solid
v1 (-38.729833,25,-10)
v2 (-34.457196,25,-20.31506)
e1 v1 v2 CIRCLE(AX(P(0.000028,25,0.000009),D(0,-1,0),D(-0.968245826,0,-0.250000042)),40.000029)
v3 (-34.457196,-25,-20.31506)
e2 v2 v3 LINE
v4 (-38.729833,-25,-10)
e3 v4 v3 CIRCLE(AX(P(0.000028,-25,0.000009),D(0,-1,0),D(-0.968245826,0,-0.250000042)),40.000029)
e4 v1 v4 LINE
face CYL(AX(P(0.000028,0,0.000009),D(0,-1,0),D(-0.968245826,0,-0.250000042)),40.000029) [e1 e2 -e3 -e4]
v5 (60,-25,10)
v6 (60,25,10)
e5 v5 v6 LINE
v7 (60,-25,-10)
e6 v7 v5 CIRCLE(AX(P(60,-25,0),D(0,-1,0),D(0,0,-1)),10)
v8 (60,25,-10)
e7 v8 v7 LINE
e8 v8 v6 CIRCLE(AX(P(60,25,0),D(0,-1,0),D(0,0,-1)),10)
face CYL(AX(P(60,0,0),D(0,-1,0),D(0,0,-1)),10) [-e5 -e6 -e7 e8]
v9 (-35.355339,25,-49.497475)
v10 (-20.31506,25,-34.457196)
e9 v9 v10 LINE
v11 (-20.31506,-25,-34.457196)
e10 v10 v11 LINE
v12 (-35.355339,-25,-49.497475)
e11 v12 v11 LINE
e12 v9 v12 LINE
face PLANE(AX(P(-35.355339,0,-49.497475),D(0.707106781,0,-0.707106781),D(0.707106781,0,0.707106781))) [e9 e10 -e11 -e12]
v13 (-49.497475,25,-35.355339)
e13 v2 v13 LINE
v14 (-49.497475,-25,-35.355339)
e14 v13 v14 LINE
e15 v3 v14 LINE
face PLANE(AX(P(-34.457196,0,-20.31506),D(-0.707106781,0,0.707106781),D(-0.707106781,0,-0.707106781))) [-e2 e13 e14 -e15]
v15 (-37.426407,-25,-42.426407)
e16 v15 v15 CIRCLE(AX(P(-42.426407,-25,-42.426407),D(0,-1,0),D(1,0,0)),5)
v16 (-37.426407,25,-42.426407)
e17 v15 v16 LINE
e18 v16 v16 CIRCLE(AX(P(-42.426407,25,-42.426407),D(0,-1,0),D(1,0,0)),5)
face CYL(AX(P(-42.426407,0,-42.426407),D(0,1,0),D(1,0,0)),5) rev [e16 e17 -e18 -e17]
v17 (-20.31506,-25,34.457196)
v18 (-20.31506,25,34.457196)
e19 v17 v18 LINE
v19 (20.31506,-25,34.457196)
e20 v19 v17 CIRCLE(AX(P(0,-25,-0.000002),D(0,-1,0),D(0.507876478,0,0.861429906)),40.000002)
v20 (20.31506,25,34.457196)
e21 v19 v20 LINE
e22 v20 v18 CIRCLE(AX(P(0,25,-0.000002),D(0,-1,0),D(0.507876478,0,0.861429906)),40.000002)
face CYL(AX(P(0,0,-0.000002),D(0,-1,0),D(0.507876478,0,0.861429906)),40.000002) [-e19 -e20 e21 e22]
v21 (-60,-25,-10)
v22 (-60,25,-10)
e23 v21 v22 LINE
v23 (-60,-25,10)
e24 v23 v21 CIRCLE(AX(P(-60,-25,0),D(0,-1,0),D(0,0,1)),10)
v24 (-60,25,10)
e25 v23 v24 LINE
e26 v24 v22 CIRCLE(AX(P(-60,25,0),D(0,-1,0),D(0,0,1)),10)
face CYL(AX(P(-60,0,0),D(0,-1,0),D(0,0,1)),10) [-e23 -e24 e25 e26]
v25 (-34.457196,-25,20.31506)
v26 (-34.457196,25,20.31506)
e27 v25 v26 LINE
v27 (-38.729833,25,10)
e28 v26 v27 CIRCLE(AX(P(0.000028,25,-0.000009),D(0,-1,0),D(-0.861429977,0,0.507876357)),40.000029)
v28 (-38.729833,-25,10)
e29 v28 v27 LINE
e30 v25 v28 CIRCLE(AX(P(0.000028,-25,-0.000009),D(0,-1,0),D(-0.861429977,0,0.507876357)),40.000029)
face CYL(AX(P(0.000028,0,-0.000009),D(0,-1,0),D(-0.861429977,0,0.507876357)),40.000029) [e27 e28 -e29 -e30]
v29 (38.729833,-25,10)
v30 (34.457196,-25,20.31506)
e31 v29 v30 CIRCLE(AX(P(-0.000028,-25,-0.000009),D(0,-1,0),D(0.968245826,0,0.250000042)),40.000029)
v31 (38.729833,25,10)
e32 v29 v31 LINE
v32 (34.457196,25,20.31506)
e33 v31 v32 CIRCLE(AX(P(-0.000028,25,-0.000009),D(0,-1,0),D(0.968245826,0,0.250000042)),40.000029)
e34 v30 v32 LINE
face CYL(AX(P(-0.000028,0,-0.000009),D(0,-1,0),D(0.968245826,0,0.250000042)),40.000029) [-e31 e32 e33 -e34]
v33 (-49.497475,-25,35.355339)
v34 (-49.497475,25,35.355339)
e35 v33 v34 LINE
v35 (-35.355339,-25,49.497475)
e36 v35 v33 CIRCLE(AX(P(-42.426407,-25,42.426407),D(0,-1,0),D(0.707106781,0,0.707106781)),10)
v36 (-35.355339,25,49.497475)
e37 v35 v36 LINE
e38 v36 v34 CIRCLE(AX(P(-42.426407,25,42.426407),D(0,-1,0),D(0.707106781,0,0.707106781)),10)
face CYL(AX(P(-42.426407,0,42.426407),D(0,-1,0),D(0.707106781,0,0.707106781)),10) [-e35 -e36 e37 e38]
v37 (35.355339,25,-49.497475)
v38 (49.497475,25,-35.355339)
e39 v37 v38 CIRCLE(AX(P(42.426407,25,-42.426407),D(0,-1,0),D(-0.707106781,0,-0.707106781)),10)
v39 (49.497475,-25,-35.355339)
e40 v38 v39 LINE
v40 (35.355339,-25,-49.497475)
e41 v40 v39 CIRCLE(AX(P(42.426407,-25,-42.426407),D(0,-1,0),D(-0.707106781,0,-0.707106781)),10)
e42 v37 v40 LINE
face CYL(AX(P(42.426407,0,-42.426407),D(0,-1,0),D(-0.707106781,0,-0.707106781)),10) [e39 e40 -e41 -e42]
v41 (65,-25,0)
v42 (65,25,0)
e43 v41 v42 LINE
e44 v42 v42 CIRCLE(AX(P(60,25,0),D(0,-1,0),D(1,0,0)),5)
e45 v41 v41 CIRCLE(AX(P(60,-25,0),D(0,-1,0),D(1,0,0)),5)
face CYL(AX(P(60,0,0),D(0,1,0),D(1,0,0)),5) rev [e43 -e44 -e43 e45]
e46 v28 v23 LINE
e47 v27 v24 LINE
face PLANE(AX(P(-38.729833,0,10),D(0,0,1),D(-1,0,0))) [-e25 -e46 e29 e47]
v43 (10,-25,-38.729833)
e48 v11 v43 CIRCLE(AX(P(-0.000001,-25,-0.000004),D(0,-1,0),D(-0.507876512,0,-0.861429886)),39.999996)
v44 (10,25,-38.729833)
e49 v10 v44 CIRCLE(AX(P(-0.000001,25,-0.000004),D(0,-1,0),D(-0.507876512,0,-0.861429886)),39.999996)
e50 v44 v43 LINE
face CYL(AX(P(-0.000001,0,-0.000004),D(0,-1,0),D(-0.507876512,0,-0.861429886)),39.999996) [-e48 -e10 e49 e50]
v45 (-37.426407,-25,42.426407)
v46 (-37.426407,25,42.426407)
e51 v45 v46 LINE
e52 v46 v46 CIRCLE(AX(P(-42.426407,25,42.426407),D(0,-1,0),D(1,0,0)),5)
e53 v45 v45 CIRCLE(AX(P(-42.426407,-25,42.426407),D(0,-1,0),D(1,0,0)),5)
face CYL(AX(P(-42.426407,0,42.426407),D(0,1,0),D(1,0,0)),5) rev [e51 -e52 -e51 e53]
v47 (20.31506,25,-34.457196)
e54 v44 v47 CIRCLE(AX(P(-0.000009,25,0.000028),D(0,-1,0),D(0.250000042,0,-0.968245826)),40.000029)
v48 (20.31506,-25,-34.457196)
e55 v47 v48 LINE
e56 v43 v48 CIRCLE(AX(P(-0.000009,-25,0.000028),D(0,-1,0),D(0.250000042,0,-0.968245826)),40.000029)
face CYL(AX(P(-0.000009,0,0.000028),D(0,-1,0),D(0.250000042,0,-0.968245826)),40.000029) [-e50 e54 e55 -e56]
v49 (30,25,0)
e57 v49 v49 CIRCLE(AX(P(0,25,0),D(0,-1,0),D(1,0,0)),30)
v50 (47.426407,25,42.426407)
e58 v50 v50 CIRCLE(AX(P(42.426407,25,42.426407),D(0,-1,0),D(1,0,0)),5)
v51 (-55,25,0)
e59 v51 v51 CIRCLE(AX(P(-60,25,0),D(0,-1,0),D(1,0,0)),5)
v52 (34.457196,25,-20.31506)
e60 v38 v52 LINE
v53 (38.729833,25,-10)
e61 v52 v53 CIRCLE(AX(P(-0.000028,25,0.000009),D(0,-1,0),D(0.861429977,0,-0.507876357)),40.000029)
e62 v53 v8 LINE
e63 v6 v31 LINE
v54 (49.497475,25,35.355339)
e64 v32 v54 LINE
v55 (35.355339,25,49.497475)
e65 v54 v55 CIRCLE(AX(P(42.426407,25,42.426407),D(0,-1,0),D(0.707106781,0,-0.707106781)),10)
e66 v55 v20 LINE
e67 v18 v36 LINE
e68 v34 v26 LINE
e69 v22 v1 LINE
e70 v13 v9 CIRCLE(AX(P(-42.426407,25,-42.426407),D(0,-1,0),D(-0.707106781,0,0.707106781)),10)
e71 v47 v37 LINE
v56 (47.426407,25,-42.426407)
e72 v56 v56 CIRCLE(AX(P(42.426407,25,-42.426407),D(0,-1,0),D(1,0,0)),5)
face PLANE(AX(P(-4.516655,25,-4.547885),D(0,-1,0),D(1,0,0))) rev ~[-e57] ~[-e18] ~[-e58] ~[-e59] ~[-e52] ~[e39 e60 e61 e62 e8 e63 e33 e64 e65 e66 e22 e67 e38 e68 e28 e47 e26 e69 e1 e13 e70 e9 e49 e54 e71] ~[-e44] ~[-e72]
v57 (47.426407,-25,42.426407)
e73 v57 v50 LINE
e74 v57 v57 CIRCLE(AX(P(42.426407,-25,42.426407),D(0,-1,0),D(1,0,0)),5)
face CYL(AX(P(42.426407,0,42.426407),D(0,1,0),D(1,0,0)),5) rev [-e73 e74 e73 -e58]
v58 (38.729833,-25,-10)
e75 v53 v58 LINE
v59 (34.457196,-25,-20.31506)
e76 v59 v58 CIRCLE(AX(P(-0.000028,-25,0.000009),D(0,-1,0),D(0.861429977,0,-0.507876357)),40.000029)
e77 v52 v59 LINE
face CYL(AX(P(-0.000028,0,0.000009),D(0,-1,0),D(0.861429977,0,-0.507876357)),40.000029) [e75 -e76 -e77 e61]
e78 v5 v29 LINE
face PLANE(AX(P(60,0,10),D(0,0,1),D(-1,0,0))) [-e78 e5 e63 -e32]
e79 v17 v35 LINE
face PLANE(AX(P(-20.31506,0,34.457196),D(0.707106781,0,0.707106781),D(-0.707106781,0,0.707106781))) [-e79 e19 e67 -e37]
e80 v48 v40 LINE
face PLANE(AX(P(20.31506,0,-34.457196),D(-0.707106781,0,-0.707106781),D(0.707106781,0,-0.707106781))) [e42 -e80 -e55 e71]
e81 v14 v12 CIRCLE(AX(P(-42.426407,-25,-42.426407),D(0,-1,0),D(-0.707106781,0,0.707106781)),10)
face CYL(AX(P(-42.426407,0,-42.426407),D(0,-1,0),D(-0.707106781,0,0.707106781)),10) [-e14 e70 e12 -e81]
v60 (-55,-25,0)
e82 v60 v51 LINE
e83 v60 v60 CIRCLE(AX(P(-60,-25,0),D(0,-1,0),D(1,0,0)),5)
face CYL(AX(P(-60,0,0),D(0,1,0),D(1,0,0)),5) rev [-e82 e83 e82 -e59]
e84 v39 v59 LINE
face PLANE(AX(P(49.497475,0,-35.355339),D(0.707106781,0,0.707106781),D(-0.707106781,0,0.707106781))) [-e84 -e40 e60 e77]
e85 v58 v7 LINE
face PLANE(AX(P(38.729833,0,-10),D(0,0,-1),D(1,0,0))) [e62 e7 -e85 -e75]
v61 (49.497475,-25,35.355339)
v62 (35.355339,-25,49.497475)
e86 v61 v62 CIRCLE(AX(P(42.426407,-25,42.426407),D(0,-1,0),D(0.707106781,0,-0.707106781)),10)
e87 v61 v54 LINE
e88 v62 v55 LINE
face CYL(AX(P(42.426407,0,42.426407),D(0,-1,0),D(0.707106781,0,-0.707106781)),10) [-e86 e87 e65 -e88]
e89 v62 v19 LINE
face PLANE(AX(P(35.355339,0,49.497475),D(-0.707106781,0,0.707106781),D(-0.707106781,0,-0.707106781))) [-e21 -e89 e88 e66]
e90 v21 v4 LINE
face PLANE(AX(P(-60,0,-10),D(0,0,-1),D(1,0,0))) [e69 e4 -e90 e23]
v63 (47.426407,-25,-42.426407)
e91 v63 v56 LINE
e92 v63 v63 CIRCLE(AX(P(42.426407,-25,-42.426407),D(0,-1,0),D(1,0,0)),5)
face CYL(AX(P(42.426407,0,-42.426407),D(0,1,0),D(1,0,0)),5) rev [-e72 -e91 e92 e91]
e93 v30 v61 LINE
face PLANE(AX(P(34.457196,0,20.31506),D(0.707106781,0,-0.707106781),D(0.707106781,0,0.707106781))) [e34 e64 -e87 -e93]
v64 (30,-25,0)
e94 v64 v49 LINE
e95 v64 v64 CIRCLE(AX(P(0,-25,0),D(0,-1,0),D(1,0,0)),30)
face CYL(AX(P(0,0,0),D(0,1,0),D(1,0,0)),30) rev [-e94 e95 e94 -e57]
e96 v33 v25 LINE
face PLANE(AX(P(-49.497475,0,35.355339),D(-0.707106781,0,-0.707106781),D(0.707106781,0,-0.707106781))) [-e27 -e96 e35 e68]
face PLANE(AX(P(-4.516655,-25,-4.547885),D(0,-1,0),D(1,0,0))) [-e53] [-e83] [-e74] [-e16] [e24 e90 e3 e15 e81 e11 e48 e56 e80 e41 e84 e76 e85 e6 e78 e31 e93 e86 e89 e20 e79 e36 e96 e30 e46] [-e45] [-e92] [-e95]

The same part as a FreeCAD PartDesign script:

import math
import FreeCAD as App
import Part
import Sketcher

doc = App.newDocument("Part")
params = doc.addObject("Spreadsheet::Sheet", "Params")
for row, (alias, value) in enumerate([
    ("sketch1_diameter", "10 mm"),
    ("sketch1_diameter2", "10 mm"),
    ("sketch1_diameter3", "10 mm"),
    ("sketch1_diameter4", "10 mm"),
    ("sketch1_diameter5", "60 mm"),
    ("pad1_length", "50 mm"),
], start=1):
    params.set(f"A{row}", alias)
    params.set(f"B{row}", "=" + value)
    params.setAlias(f"B{row}", alias)

body = doc.addObject("PartDesign::Body", "Body")

# Sketch on XZ plane
sketch1 = body.newObject("Sketcher::SketchObject", "Sketch")
sketch1.AttachmentSupport = (doc.getObject("XZ_Plane"), [""])
sketch1.MapMode = "FlatFace"
sketch1.addGeometry([
    Part.LineSegment(App.Vector(-60, -10, 0), App.Vector(-38.729833, -10, 0)),  # 0
    Part.ArcOfCircle(Part.Circle(App.Vector(0.000028, 0.000009, 0), App.Vector(0, 0, 1), 40.000029), math.radians(-165.522485), math.radians(-149.477522)),  # 1
    Part.LineSegment(App.Vector(-34.457196, -20.31506, 0), App.Vector(-49.497475, -35.355339, 0)),  # 2
    Part.ArcOfCircle(Part.Circle(App.Vector(-42.426407, -42.426407, 0), App.Vector(0, 0, 1), 10), math.radians(135), math.radians(315)),  # 3
    Part.LineSegment(App.Vector(-35.355339, -49.497475, 0), App.Vector(-20.31506, -34.457196, 0)),  # 4
    Part.ArcOfCircle(Part.Circle(App.Vector(-0.000001, -0.000004, 0), App.Vector(0, 0, 1), 39.999996), math.radians(-120.522489), math.radians(-75.522484)),  # 5
    Part.ArcOfCircle(Part.Circle(App.Vector(-0.000009, 0.000028, 0), App.Vector(0, 0, 1), 40.000029), math.radians(-75.522485), math.radians(-59.477522)),  # 6
    Part.LineSegment(App.Vector(20.31506, -34.457196, 0), App.Vector(35.355339, -49.497475, 0)),  # 7
    Part.ArcOfCircle(Part.Circle(App.Vector(42.426407, -42.426407, 0), App.Vector(0, 0, 1), 10), math.radians(-135), math.radians(45)),  # 8
    Part.LineSegment(App.Vector(49.497475, -35.355339, 0), App.Vector(34.457196, -20.31506, 0)),  # 9
    Part.ArcOfCircle(Part.Circle(App.Vector(-0.000028, 0.000009, 0), App.Vector(0, 0, 1), 40.000029), math.radians(-30.522478), math.radians(-14.477515)),  # 10
    Part.LineSegment(App.Vector(38.729833, -10, 0), App.Vector(60, -10, 0)),  # 11
    Part.ArcOfCircle(Part.Circle(App.Vector(60, 0, 0), App.Vector(0, 0, 1), 10), math.radians(-90), math.radians(90)),  # 12
    Part.LineSegment(App.Vector(60, 10, 0), App.Vector(38.729833, 10, 0)),  # 13
    Part.ArcOfCircle(Part.Circle(App.Vector(-0.000028, -0.000009, 0), App.Vector(0, 0, 1), 40.000029), math.radians(14.477515), math.radians(30.522478)),  # 14
    Part.LineSegment(App.Vector(34.457196, 20.31506, 0), App.Vector(49.497475, 35.355339, 0)),  # 15
    Part.ArcOfCircle(Part.Circle(App.Vector(42.426407, 42.426407, 0), App.Vector(0, 0, 1), 10), math.radians(-45), math.radians(135)),  # 16
    Part.LineSegment(App.Vector(35.355339, 49.497475, 0), App.Vector(20.31506, 34.457196, 0)),  # 17
    Part.ArcOfCircle(Part.Circle(App.Vector(0, -0.000002, 0), App.Vector(0, 0, 1), 40.000002), math.radians(59.477514), math.radians(120.522486)),  # 18
    Part.LineSegment(App.Vector(-20.31506, 34.457196, 0), App.Vector(-35.355339, 49.497475, 0)),  # 19
    Part.ArcOfCircle(Part.Circle(App.Vector(-42.426407, 42.426407, 0), App.Vector(0, 0, 1), 10), math.radians(45), math.radians(225)),  # 20
    Part.LineSegment(App.Vector(-49.497475, 35.355339, 0), App.Vector(-34.457196, 20.31506, 0)),  # 21
    Part.ArcOfCircle(Part.Circle(App.Vector(0.000028, -0.000009, 0), App.Vector(0, 0, 1), 40.000029), math.radians(149.477522), math.radians(165.522485)),  # 22
    Part.LineSegment(App.Vector(-38.729833, 10, 0), App.Vector(-60, 10, 0)),  # 23
    Part.ArcOfCircle(Part.Circle(App.Vector(-60, 0, 0), App.Vector(0, 0, 1), 10), math.radians(90), math.radians(270)),  # 24
    Part.Circle(App.Vector(-42.426407, -42.426407, 0), App.Vector(0, 0, 1), 5),  # 25
    Part.Circle(App.Vector(42.426407, -42.426407, 0), App.Vector(0, 0, 1), 5),  # 26
    Part.Circle(App.Vector(-60, 0, 0), App.Vector(0, 0, 1), 5),  # 27
    Part.Circle(App.Vector(-42.426407, 42.426407, 0), App.Vector(0, 0, 1), 5),  # 28
    Part.Circle(App.Vector(0, 0, 0), App.Vector(0, 0, 1), 30),  # 29
    Part.Circle(App.Vector(60, 0, 0), App.Vector(0, 0, 1), 5),  # 30
    Part.Circle(App.Vector(42.426407, 42.426407, 0), App.Vector(0, 0, 1), 5),  # 31
], False)
sketch1.addConstraint([
    Sketcher.Constraint("Coincident", 0, 2, 1, 1),
    Sketcher.Constraint("Coincident", 1, 2, 2, 1),
    Sketcher.Constraint("Coincident", 2, 2, 3, 1),
    Sketcher.Constraint("Coincident", 3, 2, 4, 1),
    Sketcher.Constraint("Coincident", 4, 2, 5, 1),
    Sketcher.Constraint("Coincident", 5, 2, 6, 1),
    Sketcher.Constraint("Coincident", 6, 2, 7, 1),
    Sketcher.Constraint("Coincident", 7, 2, 8, 1),
    Sketcher.Constraint("Coincident", 8, 2, 9, 1),
    Sketcher.Constraint("Coincident", 9, 2, 10, 1),
    Sketcher.Constraint("Coincident", 10, 2, 11, 1),
    Sketcher.Constraint("Coincident", 11, 2, 12, 1),
    Sketcher.Constraint("Coincident", 12, 2, 13, 1),
    Sketcher.Constraint("Coincident", 13, 2, 14, 1),
    Sketcher.Constraint("Coincident", 14, 2, 15, 1),
    Sketcher.Constraint("Coincident", 15, 2, 16, 1),
    Sketcher.Constraint("Coincident", 16, 2, 17, 1),
    Sketcher.Constraint("Coincident", 17, 2, 18, 1),
    Sketcher.Constraint("Coincident", 18, 2, 19, 1),
    Sketcher.Constraint("Coincident", 19, 2, 20, 1),
    Sketcher.Constraint("Coincident", 20, 2, 21, 1),
    Sketcher.Constraint("Coincident", 21, 2, 22, 1),
    Sketcher.Constraint("Coincident", 22, 2, 23, 1),
    Sketcher.Constraint("Coincident", 23, 2, 24, 1),
    Sketcher.Constraint("Coincident", 24, 2, 0, 1),
    Sketcher.Constraint("Horizontal", 0),
    Sketcher.Constraint("Horizontal", 11),
    Sketcher.Constraint("Horizontal", 13),
    Sketcher.Constraint("Horizontal", 23),
    Sketcher.Constraint("Coincident", 5, 3, -1, 1),
    Sketcher.Constraint("Coincident", 18, 3, -1, 1),
    Sketcher.Constraint("Coincident", 29, 3, -1, 1),
    Sketcher.Constraint("Coincident", 25, 3, 3, 3),
    Sketcher.Constraint("Coincident", 26, 3, 8, 3),
    Sketcher.Constraint("Coincident", 27, 3, 24, 3),
    Sketcher.Constraint("Coincident", 28, 3, 20, 3),
    Sketcher.Constraint("Coincident", 30, 3, 12, 3),
    Sketcher.Constraint("Coincident", 31, 3, 16, 3),
    Sketcher.Constraint("PointOnObject", 12, 3, -1),
    Sketcher.Constraint("PointOnObject", 24, 3, -1),
    Sketcher.Constraint("Diameter", 25, 10.0),
    Sketcher.Constraint("Diameter", 26, 10.0),
    Sketcher.Constraint("Diameter", 27, 10.0),
    Sketcher.Constraint("Diameter", 28, 10.0),
    Sketcher.Constraint("Diameter", 29, 60.0),
    Sketcher.Constraint("Diameter", 30, 10.0),
    Sketcher.Constraint("Diameter", 31, 10.0),
    Sketcher.Constraint("Radius", 3, 10.0),
    Sketcher.Constraint("Radius", 8, 10.0),
    Sketcher.Constraint("Radius", 12, 10.0),
    Sketcher.Constraint("Radius", 16, 10.0),
    Sketcher.Constraint("Radius", 18, 40.000002),
    Sketcher.Constraint("Radius", 20, 10.0),
    Sketcher.Constraint("Radius", 24, 10.0),
    Sketcher.Constraint("DistanceX", -1, 1, 12, 3, 60.0),
    Sketcher.Constraint("DistanceX", 24, 3, -1, 1, 60.0),
    Sketcher.Constraint("DistanceX", -1, 1, 5, 2, 10.0),
    Sketcher.Constraint("DistanceX", -1, 1, 11, 2, 60.0),
    Sketcher.Constraint("DistanceX", -1, 1, 12, 2, 60.0),
    Sketcher.Constraint("DistanceX", 23, 2, -1, 1, 60.0),
    Sketcher.Constraint("DistanceX", 24, 2, -1, 1, 60.0),
    Sketcher.Constraint("Radius", 1, 40.000029),
    Sketcher.Constraint("Radius", 6, 40.000029),
    Sketcher.Constraint("Radius", 10, 40.000029),
    Sketcher.Constraint("Radius", 14, 40.000029),
    Sketcher.Constraint("Radius", 22, 40.000029),
    Sketcher.Constraint("Radius", 5, 39.999996),
    Sketcher.Constraint("DistanceX", 3, 3, 6, 3, 42.426398),
    Sketcher.Constraint("DistanceY", 3, 3, 14, 3, 42.426398),
    Sketcher.Constraint("DistanceY", 1, 3, 16, 3, 42.426398),
    Sketcher.Constraint("DistanceY", 10, 3, 16, 3, 42.426398),
    Sketcher.Constraint("DistanceX", 20, 3, 6, 3, 42.426398),
    Sketcher.Constraint("DistanceY", 10, 3, 20, 3, 42.426398),
    Sketcher.Constraint("DistanceY", 26, 3, 22, 3, 42.426398),
    Sketcher.Constraint("DistanceX", 0, 1, 0, 2, 21.270167),
    Sketcher.Constraint("DistanceX", 11, 1, 11, 2, 21.270167),
    Sketcher.Constraint("DistanceX", 13, 2, 13, 1, 21.270167),
    Sketcher.Constraint("DistanceX", 23, 2, 23, 1, 21.270167),
    Sketcher.Constraint("DistanceY", 1, 2, -1, 1, 20.31506),
    Sketcher.Constraint("DistanceY", 2, 2, -1, 1, 35.355339),
    Sketcher.Constraint("DistanceX", 3, 2, -1, 1, 35.355339),
    Sketcher.Constraint("DistanceX", 4, 2, -1, 1, 20.31506),
    Sketcher.Constraint("DistanceX", -1, 1, 6, 2, 20.31506),
    Sketcher.Constraint("DistanceX", -1, 1, 7, 2, 35.355339),
    Sketcher.Constraint("DistanceY", 8, 2, -1, 1, 35.355339),
    Sketcher.Constraint("DistanceY", 9, 2, -1, 1, 20.31506),
    Sketcher.Constraint("DistanceY", -1, 1, 14, 2, 20.31506),
    Sketcher.Constraint("DistanceY", -1, 1, 15, 2, 35.355339),
    Sketcher.Constraint("DistanceX", -1, 1, 16, 2, 35.355339),
    Sketcher.Constraint("DistanceX", -1, 1, 17, 2, 20.31506),
    Sketcher.Constraint("DistanceX", 18, 2, -1, 1, 20.31506),
    Sketcher.Constraint("DistanceX", 19, 2, -1, 1, 35.355339),
    Sketcher.Constraint("DistanceY", -1, 1, 20, 2, 35.355339),
    Sketcher.Constraint("DistanceY", -1, 1, 21, 2, 20.31506),
    Sketcher.Constraint("DistanceX", 1, 3, 8, 3, 42.426379),
    Sketcher.Constraint("DistanceX", 5, 3, 8, 3, 42.426408),
    Sketcher.Constraint("DistanceX", 3, 3, 10, 3, 42.426379),
    Sketcher.Constraint("DistanceX", 3, 3, 14, 3, 42.426379),
    Sketcher.Constraint("DistanceX", 1, 3, 16, 3, 42.426379),
    Sketcher.Constraint("DistanceX", 22, 3, 26, 3, 42.426379),
])
sketch1.setExpression("Constraints[40]", "Params.sketch1_diameter")
sketch1.setExpression("Constraints[41]", "Params.sketch1_diameter2")
sketch1.setExpression("Constraints[42]", "Params.sketch1_diameter3")
sketch1.setExpression("Constraints[43]", "Params.sketch1_diameter4")
sketch1.setExpression("Constraints[44]", "Params.sketch1_diameter5")
pad1 = body.newObject("PartDesign::Pad", "Pad")
pad1.Profile = sketch1
pad1.setExpression("Length", "Params.pad1_length")
pad1.Midplane = True

doc.recompute()
